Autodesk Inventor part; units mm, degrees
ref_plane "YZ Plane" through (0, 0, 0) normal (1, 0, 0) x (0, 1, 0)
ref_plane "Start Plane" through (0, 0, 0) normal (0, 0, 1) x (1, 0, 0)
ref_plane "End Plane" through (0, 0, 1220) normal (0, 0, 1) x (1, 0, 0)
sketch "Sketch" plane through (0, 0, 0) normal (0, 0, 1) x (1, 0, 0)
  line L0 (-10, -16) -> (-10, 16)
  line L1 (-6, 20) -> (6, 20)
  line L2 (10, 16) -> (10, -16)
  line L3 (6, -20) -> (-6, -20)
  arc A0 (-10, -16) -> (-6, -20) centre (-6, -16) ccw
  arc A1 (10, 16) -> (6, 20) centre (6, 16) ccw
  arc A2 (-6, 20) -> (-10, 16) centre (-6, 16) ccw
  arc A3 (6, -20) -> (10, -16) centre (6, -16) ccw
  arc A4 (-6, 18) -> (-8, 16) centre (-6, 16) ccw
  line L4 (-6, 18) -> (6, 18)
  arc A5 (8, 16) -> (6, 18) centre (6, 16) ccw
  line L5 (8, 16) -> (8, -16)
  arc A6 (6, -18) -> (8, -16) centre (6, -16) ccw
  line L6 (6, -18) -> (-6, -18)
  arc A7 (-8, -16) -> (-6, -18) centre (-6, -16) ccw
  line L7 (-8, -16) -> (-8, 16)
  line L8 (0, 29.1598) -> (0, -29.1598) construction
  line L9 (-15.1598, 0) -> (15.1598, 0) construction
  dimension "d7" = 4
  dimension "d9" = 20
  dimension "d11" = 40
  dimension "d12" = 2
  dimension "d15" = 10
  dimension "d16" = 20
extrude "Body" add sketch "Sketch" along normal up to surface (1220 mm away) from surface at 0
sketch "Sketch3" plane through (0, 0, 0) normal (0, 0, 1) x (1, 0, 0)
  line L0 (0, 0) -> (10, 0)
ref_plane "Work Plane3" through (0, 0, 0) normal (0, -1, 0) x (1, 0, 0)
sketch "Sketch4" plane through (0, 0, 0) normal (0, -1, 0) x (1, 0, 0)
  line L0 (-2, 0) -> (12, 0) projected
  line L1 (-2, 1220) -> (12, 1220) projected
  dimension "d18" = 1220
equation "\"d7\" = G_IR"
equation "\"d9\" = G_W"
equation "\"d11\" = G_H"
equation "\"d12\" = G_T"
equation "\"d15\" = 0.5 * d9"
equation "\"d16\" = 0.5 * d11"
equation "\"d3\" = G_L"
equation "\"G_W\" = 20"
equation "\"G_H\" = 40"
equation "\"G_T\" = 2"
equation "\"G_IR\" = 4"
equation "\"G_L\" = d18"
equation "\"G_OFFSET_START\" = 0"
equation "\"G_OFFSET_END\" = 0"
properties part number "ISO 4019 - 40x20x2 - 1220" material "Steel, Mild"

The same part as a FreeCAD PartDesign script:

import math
import FreeCAD as App
import Part
import Sketcher

doc = App.newDocument("Part")
body = doc.addObject("PartDesign::Body", "Body")

# Sketch on XY plane
sketch1 = body.newObject("Sketcher::SketchObject", "Sketch")
sketch1.AttachmentSupport = (doc.getObject("XY_Plane"), [""])
sketch1.MapMode = "FlatFace"
sketch1.addGeometry([
    Part.LineSegment(App.Vector(-10, 16, 0), App.Vector(-10, -16, 0)),  # 0
    Part.ArcOfCircle(Part.Circle(App.Vector(-6, -16, 0), App.Vector(0, 0, 1), 4), math.radians(180), math.radians(270)),  # 1
    Part.LineSegment(App.Vector(-6, -20, 0), App.Vector(6, -20, 0)),  # 2
    Part.ArcOfCircle(Part.Circle(App.Vector(6, -16, 0), App.Vector(0, 0, 1), 4), math.radians(-90), math.radians(0)),  # 3
    Part.LineSegment(App.Vector(10, -16, 0), App.Vector(10, 16, 0)),  # 4
    Part.ArcOfCircle(Part.Circle(App.Vector(6, 16, 0), App.Vector(0, 0, 1), 4), math.radians(0), math.radians(90)),  # 5
    Part.LineSegment(App.Vector(6, 20, 0), App.Vector(-6, 20, 0)),  # 6
    Part.ArcOfCircle(Part.Circle(App.Vector(-6, 16, 0), App.Vector(0, 0, 1), 4), math.radians(90), math.radians(180)),  # 7
    Part.ArcOfCircle(Part.Circle(App.Vector(-6, 16, 0), App.Vector(0, 0, 1), 2), math.radians(90), math.radians(180)),  # 8
    Part.LineSegment(App.Vector(-6, 18, 0), App.Vector(6, 18, 0)),  # 9
    Part.ArcOfCircle(Part.Circle(App.Vector(6, 16, 0), App.Vector(0, 0, 1), 2), math.radians(0), math.radians(90)),  # 10
    Part.LineSegment(App.Vector(8, 16, 0), App.Vector(8, -16, 0)),  # 11
    Part.ArcOfCircle(Part.Circle(App.Vector(6, -16, 0), App.Vector(0, 0, 1), 2), math.radians(-90), math.radians(0)),  # 12
    Part.LineSegment(App.Vector(6, -18, 0), App.Vector(-6, -18, 0)),  # 13
    Part.ArcOfCircle(Part.Circle(App.Vector(-6, -16, 0), App.Vector(0, 0, 1), 2), math.radians(180), math.radians(270)),  # 14
    Part.LineSegment(App.Vector(-8, -16, 0), App.Vector(-8, 16, 0)),  # 15
], False)
sketch1.addConstraint([
    Sketcher.Constraint("Tangent", 0, 2, 1, 1),
    Sketcher.Constraint("Tangent", 1, 2, 2, 1),
    Sketcher.Constraint("Tangent", 2, 2, 3, 1),
    Sketcher.Constraint("Tangent", 3, 2, 4, 1),
    Sketcher.Constraint("Tangent", 4, 2, 5, 1),
    Sketcher.Constraint("Tangent", 5, 2, 6, 1),
    Sketcher.Constraint("Tangent", 6, 2, 7, 1),
    Sketcher.Constraint("Tangent", 7, 2, 0, 1),
    Sketcher.Constraint("Tangent", 8, 1, 9, 1),
    Sketcher.Constraint("Tangent", 9, 2, 10, 2),
    Sketcher.Constraint("Tangent", 10, 1, 11, 1),
    Sketcher.Constraint("Tangent", 11, 2, 12, 2),
    Sketcher.Constraint("Tangent", 12, 1, 13, 1),
    Sketcher.Constraint("Tangent", 13, 2, 14, 2),
    Sketcher.Constraint("Tangent", 14, 1, 15, 1),
    Sketcher.Constraint("Tangent", 15, 2, 8, 2),
    Sketcher.Constraint("Vertical", 0),
    Sketcher.Constraint("Horizontal", 2),
    Sketcher.Constraint("Vertical", 4),
    Sketcher.Constraint("Horizontal", 6),
    Sketcher.Constraint("Horizontal", 9),
    Sketcher.Constraint("Vertical", 11),
    Sketcher.Constraint("Horizontal", 13),
    Sketcher.Constraint("Vertical", 15),
    Sketcher.Constraint("Coincident", 8, 3, 7, 3),
    Sketcher.Constraint("Coincident", 10, 3, 5, 3),
    Sketcher.Constraint("Coincident", 12, 3, 3, 3),
    Sketcher.Constraint("Equal", 1, 3),
    Sketcher.Constraint("Equal", 3, 5),
    Sketcher.Constraint("Equal", 5, 7),
    Sketcher.Constraint("Equal", 12, 14),
    Sketcher.Constraint("Symmetric", 1, 3, 5, 3, -1, 1),
    Sketcher.Constraint("Radius", 1, 4.0),
    Sketcher.Constraint("Radius", 8, 2.0),
    Sketcher.Constraint("DistanceX", 0, 2, -1, 1, 10.0),
    Sketcher.Constraint("DistanceY", 1, 2, -1, 1, 20.0),
])
pad1 = body.newObject("PartDesign::Pad", "Pad")
pad1.Profile = sketch1
pad1.Length = 1220

doc.recompute()
